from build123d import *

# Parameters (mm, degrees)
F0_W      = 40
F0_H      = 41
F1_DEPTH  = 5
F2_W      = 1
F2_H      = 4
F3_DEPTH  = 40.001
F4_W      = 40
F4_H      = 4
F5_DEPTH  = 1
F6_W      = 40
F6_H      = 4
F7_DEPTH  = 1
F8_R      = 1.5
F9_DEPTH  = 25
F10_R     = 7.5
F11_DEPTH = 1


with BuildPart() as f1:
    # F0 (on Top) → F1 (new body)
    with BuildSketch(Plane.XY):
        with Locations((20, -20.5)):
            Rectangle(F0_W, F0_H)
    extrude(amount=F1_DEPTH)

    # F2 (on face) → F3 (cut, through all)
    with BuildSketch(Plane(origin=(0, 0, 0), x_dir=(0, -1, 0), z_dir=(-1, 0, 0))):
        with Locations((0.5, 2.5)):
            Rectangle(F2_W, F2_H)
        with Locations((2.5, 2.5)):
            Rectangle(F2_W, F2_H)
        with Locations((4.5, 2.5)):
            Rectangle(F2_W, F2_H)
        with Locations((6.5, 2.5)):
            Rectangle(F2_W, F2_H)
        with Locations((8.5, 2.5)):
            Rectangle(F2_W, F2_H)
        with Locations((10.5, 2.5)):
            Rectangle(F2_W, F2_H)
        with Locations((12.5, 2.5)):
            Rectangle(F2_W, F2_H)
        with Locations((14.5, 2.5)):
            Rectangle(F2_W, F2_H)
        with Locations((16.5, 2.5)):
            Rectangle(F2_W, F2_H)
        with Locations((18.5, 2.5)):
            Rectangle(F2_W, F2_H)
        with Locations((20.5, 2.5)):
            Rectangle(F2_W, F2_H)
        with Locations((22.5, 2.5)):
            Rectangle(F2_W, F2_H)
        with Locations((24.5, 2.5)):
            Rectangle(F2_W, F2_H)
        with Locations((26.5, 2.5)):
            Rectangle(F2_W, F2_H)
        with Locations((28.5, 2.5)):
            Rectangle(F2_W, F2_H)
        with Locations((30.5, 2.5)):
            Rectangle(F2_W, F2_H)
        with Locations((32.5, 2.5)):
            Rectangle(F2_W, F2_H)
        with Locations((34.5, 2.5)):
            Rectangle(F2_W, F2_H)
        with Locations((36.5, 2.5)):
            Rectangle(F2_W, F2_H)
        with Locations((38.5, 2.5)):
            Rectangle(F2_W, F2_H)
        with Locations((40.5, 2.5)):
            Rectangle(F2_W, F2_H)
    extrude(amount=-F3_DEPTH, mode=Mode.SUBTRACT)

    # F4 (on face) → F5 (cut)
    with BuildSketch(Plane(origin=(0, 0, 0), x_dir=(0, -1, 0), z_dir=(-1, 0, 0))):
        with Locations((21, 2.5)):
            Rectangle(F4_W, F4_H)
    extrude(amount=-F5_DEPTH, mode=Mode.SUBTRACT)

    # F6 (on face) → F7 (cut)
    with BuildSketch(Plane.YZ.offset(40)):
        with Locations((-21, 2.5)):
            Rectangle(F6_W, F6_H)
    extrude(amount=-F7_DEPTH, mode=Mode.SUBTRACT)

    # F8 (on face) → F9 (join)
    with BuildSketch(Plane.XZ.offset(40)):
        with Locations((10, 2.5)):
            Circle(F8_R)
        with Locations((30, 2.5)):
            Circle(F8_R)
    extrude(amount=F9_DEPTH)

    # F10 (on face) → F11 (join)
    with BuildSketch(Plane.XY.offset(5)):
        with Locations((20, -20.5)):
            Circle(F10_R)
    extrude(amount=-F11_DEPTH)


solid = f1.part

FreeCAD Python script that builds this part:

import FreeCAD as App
import Part
import Sketcher

V = App.Vector
Q = App.Units.Quantity


def add_polygon(sketch, points):
    """Adds a closed chain of lines whose ends are joined by coincident constraints."""
    first, n = sketch.GeometryCount, len(points)
    for a, b in zip(points, points[1:] + points[:1]):
        sketch.addGeometry(Part.LineSegment(App.Vector(*a, 0), App.Vector(*b, 0)), False)
    for i in range(n):
        sketch.addConstraint(Sketcher.Constraint("Coincident", first + i, 2, first + (i + 1) % n, 1))

doc = App.newDocument("Part")
body = doc.addObject("PartDesign::Body", "Body")

sketch1 = body.newObject("Sketcher::SketchObject", "Sketch")
sketch1.AttachmentSupport = (doc.getObject("XY_Plane"), [""])
sketch1.MapMode = "FlatFace"
add_polygon(sketch1, [(0, 0), (0, -41), (40, -41), (40, 0)])
sketch1.addConstraint([
    Sketcher.Constraint("Vertical", 0),
    Sketcher.Constraint("Horizontal", 1),
    Sketcher.Constraint("Vertical", 2),
    Sketcher.Constraint("Horizontal", 3),
    Sketcher.Constraint("Coincident", 3, 2, -1, 1),
    Sketcher.Constraint("DistanceX", 1, 1, 1, 2, Q("40 mm")),
    Sketcher.Constraint("DistanceY", 0, 2, 0, 1, Q("41 mm")),
])
pad1 = body.newObject("PartDesign::Pad", "Pad")
pad1.Profile = sketch1
pad1.Length = 5

sketch2 = body.newObject("Sketcher::SketchObject", "Sketch001")
sketch2.AttachmentSupport = (doc.getObject("YZ_Plane"), [""])
sketch2.MapMode = "FlatFace"
add_polygon(sketch2, [(0, 4.5), (0, 0.5), (-1, 0.5), (-1, 4.5)])
add_polygon(sketch2, [(-2, 4.5), (-2, 0.5), (-3, 0.5), (-3, 4.5)])
add_polygon(sketch2, [(-4, 4.5), (-4, 0.5), (-5, 0.5), (-5, 4.5)])
add_polygon(sketch2, [(-6, 4.5), (-6, 0.5), (-7, 0.5), (-7, 4.5)])
add_polygon(sketch2, [(-8, 4.5), (-8, 0.5), (-9, 0.5), (-9, 4.5)])
add_polygon(sketch2, [(-10, 4.5), (-10, 0.5), (-11, 0.5), (-11, 4.5)])
add_polygon(sketch2, [(-12, 4.5), (-12, 0.5), (-13, 0.5), (-13, 4.5)])
add_polygon(sketch2, [(-14, 4.5), (-14, 0.5), (-15, 0.5), (-15, 4.5)])
add_polygon(sketch2, [(-16, 4.5), (-16, 0.5), (-17, 0.5), (-17, 4.5)])
add_polygon(sketch2, [(-18, 4.5), (-18, 0.5), (-19, 0.5), (-19, 4.5)])
add_polygon(sketch2, [(-20, 4.5), (-20, 0.5), (-21, 0.5), (-21, 4.5)])
add_polygon(sketch2, [(-22, 4.5), (-22, 0.5), (-23, 0.5), (-23, 4.5)])
add_polygon(sketch2, [(-24, 4.5), (-24, 0.5), (-25, 0.5), (-25, 4.5)])
add_polygon(sketch2, [(-26, 4.5), (-26, 0.5), (-27, 0.5), (-27, 4.5)])
add_polygon(sketch2, [(-28, 4.5), (-28, 0.5), (-29, 0.5), (-29, 4.5)])
add_polygon(sketch2, [(-30, 4.5), (-30, 0.5), (-31, 0.5), (-31, 4.5)])
add_polygon(sketch2, [(-32, 4.5), (-32, 0.5), (-33, 0.5), (-33, 4.5)])
add_polygon(sketch2, [(-34, 4.5), (-34, 0.5), (-35, 0.5), (-35, 4.5)])
add_polygon(sketch2, [(-36, 4.5), (-36, 0.5), (-37, 0.5), (-37, 4.5)])
add_polygon(sketch2, [(-38, 4.5), (-38, 0.5), (-39, 0.5), (-39, 4.5)])
add_polygon(sketch2, [(-40, 4.5), (-40, 0.5), (-41, 0.5), (-41, 4.5)])
sketch2.addConstraint([
    Sketcher.Constraint("Vertical", 0),
    Sketcher.Constraint("Horizontal", 1),
    Sketcher.Constraint("Vertical", 2),
    Sketcher.Constraint("Horizontal", 3),
    Sketcher.Constraint("Vertical", 4),
    Sketcher.Constraint("Horizontal", 5),
    Sketcher.Constraint("Vertical", 6),
    Sketcher.Constraint("Horizontal", 7),
    Sketcher.Constraint("Vertical", 8),
    Sketcher.Constraint("Horizontal", 9),
    Sketcher.Constraint("Vertical", 10),
    Sketcher.Constraint("Horizontal", 11),
    Sketcher.Constraint("Vertical", 12),
    Sketcher.Constraint("Horizontal", 13),
    Sketcher.Constraint("Vertical", 14),
    Sketcher.Constraint("Horizontal", 15),
    Sketcher.Constraint("Vertical", 16),
    Sketcher.Constraint("Horizontal", 17),
    Sketcher.Constraint("Vertical", 18),
    Sketcher.Constraint("Horizontal", 19),
    Sketcher.Constraint("Vertical", 20),
    Sketcher.Constraint("Horizontal", 21),
    Sketcher.Constraint("Vertical", 22),
    Sketcher.Constraint("Horizontal", 23),
    Sketcher.Constraint("Vertical", 24),
    Sketcher.Constraint("Horizontal", 25),
    Sketcher.Constraint("Vertical", 26),
    Sketcher.Constraint("Horizontal", 27),
    Sketcher.Constraint("Vertical", 28),
    Sketcher.Constraint("Horizontal", 29),
    Sketcher.Constraint("Vertical", 30),
    Sketcher.Constraint("Horizontal", 31),
    Sketcher.Constraint("Vertical", 32),
    Sketcher.Constraint("Horizontal", 33),
    Sketcher.Constraint("Vertical", 34),
    Sketcher.Constraint("Horizontal", 35),
    Sketcher.Constraint("Vertical", 36),
    Sketcher.Constraint("Horizontal", 37),
    Sketcher.Constraint("Vertical", 38),
    Sketcher.Constraint("Horizontal", 39),
    Sketcher.Constraint("Vertical", 40),
    Sketcher.Constraint("Horizontal", 41),
    Sketcher.Constraint("Vertical", 42),
    Sketcher.Constraint("Horizontal", 43),
    Sketcher.Constraint("Vertical", 44),
    Sketcher.Constraint("Horizontal", 45),
    Sketcher.Constraint("Vertical", 46),
    Sketcher.Constraint("Horizontal", 47),
    Sketcher.Constraint("Vertical", 48),
    Sketcher.Constraint("Horizontal", 49),
    Sketcher.Constraint("Vertical", 50),
    Sketcher.Constraint("Horizontal", 51),
    Sketcher.Constraint("Vertical", 52),
    Sketcher.Constraint("Horizontal", 53),
    Sketcher.Constraint("Vertical", 54),
    Sketcher.Constraint("Horizontal", 55),
    Sketcher.Constraint("Vertical", 56),
    Sketcher.Constraint("Horizontal", 57),
    Sketcher.Constraint("Vertical", 58),
    Sketcher.Constraint("Horizontal", 59),
    Sketcher.Constraint("Vertical", 60),
    Sketcher.Constraint("Horizontal", 61),
    Sketcher.Constraint("Vertical", 62),
    Sketcher.Constraint("Horizontal", 63),
    Sketcher.Constraint("Vertical", 64),
    Sketcher.Constraint("Horizontal", 65),
    Sketcher.Constraint("Vertical", 66),
    Sketcher.Constraint("Horizontal", 67),
    Sketcher.Constraint("Vertical", 68),
    Sketcher.Constraint("Horizontal", 69),
    Sketcher.Constraint("Vertical", 70),
    Sketcher.Constraint("Horizontal", 71),
    Sketcher.Constraint("Vertical", 72),
    Sketcher.Constraint("Horizontal", 73),
    Sketcher.Constraint("Vertical", 74),
    Sketcher.Constraint("Horizontal", 75),
    Sketcher.Constraint("Vertical", 76),
    Sketcher.Constraint("Horizontal", 77),
    Sketcher.Constraint("Vertical", 78),
    Sketcher.Constraint("Horizontal", 79),
    Sketcher.Constraint("Vertical", 80),
    Sketcher.Constraint("Horizontal", 81),
    Sketcher.Constraint("Vertical", 82),
    Sketcher.Constraint("Horizontal", 83),
    Sketcher.Constraint("PointOnObject", 0, 2, -2),
    Sketcher.Constraint("Horizontal", 1, 2, 4, 2),
    Sketcher.Constraint("Horizontal", 3, 2, 6, 2),
    Sketcher.Constraint("Horizontal", 5, 2, 8, 2),
    Sketcher.Constraint("Horizontal", 7, 2, 10, 2),
    Sketcher.Constraint("Horizontal", 9, 2, 12, 2),
    Sketcher.Constraint("Horizontal", 11, 2, 14, 2),
    Sketcher.Constraint("Horizontal", 13, 2, 16, 2),
    Sketcher.Constraint("Horizontal", 15, 2, 18, 2),
    Sketcher.Constraint("Horizontal", 17, 2, 20, 2),
    Sketcher.Constraint("Horizontal", 19, 2, 22, 2),
    Sketcher.Constraint("Horizontal", 21, 2, 24, 2),
    Sketcher.Constraint("Horizontal", 23, 2, 26, 2),
    Sketcher.Constraint("Horizontal", 25, 2, 28, 2),
    Sketcher.Constraint("Horizontal", 27, 2, 30, 2),
    Sketcher.Constraint("Horizontal", 29, 2, 32, 2),
    Sketcher.Constraint("Horizontal", 31, 2, 34, 2),
    Sketcher.Constraint("Horizontal", 33, 2, 36, 2),
    Sketcher.Constraint("Horizontal", 35, 2, 38, 2),
    Sketcher.Constraint("Horizontal", 37, 2, 40, 2),
    Sketcher.Constraint("Horizontal", 39, 2, 42, 2),
    Sketcher.Constraint("Horizontal", 41, 2, 44, 2),
    Sketcher.Constraint("Horizontal", 43, 2, 46, 2),
    Sketcher.Constraint("Horizontal", 45, 2, 48, 2),
    Sketcher.Constraint("Horizontal", 47, 2, 50, 2),
    Sketcher.Constraint("Horizontal", 49, 2, 52, 2),
    Sketcher.Constraint("Horizontal", 51, 2, 54, 2),
    Sketcher.Constraint("Horizontal", 53, 2, 56, 2),
    Sketcher.Constraint("Horizontal", 55, 2, 58, 2),
    Sketcher.Constraint("Horizontal", 57, 2, 60, 2),
    Sketcher.Constraint("Horizontal", 59, 2, 62, 2),
    Sketcher.Constraint("Horizontal", 61, 2, 64, 2),
    Sketcher.Constraint("Horizontal", 63, 2, 66, 2),
    Sketcher.Constraint("Horizontal", 65, 2, 68, 2),
    Sketcher.Constraint("Horizontal", 67, 2, 70, 2),
    Sketcher.Constraint("Horizontal", 69, 2, 72, 2),
    Sketcher.Constraint("Horizontal", 71, 2, 74, 2),
    Sketcher.Constraint("Horizontal", 73, 2, 76, 2),
    Sketcher.Constraint("Horizontal", 75, 2, 78, 2),
    Sketcher.Constraint("Horizontal", 77, 2, 80, 2),
    Sketcher.Constraint("Horizontal", 79, 2, 82, 2),
    Sketcher.Constraint("Equal", 3, 5),
    Sketcher.Constraint("Equal", 7, 9),
    Sketcher.Constraint("Equal", 11, 13),
    Sketcher.Constraint("Equal", 15, 17),
    Sketcher.Constraint("Equal", 19, 21),
    Sketcher.Constraint("Equal", 23, 25),
    Sketcher.Constraint("Equal", 27, 29),
    Sketcher.Constraint("Equal", 31, 33),
    Sketcher.Constraint("Equal", 35, 37),
    Sketcher.Constraint("Equal", 39, 41),
    Sketcher.Constraint("Equal", 43, 45),
    Sketcher.Constraint("Equal", 47, 49),
    Sketcher.Constraint("Equal", 51, 53),
    Sketcher.Constraint("Equal", 55, 57),
    Sketcher.Constraint("Equal", 59, 61),
    Sketcher.Constraint("Equal", 63, 65),
    Sketcher.Constraint("Equal", 67, 69),
    Sketcher.Constraint("Equal", 71, 73),
    Sketcher.Constraint("Equal", 75, 77),
    Sketcher.Constraint("Equal", 79, 81),
    Sketcher.Constraint("DistanceX", 1, 2, 1, 1, Q("1 mm")),
    Sketcher.Constraint("DistanceY", 0, 2, 0, 1, Q("4 mm")),
    Sketcher.Constraint("DistanceX", 4, 2, -1, 1, Q("2 mm")),
    Sketcher.Constraint("DistanceX", 8, 2, -1, 1, Q("4 mm")),
    Sketcher.Constraint("DistanceX", 12, 2, -1, 1, Q("6 mm")),
    Sketcher.Constraint("DistanceX", 16, 2, -1, 1, Q("8 mm")),
    Sketcher.Constraint("DistanceX", 20, 2, -1, 1, Q("10 mm")),
    Sketcher.Constraint("DistanceX", 24, 2, -1, 1, Q("12 mm")),
    Sketcher.Constraint("DistanceX", 28, 2, -1, 1, Q("14 mm")),
    Sketcher.Constraint("DistanceX", 32, 2, -1, 1, Q("16 mm")),
    Sketcher.Constraint("DistanceX", 36, 2, -1, 1, Q("18 mm")),
    Sketcher.Constraint("DistanceX", 40, 2, -1, 1, Q("20 mm")),
    Sketcher.Constraint("DistanceX", 44, 2, -1, 1, Q("22 mm")),
    Sketcher.Constraint("DistanceX", 48, 2, -1, 1, Q("24 mm")),
    Sketcher.Constraint("DistanceX", 52, 2, -1, 1, Q("26 mm")),
    Sketcher.Constraint("DistanceX", 56, 2, -1, 1, Q("28 mm")),
    Sketcher.Constraint("DistanceX", 60, 2, -1, 1, Q("30 mm")),
    Sketcher.Constraint("DistanceX", 64, 2, -1, 1, Q("32 mm")),
    Sketcher.Constraint("DistanceX", 68, 2, -1, 1, Q("34 mm")),
    Sketcher.Constraint("DistanceX", 72, 2, -1, 1, Q("36 mm")),
    Sketcher.Constraint("DistanceX", 76, 2, -1, 1, Q("38 mm")),
    Sketcher.Constraint("DistanceX", 80, 2, -1, 1, Q("40 mm")),
    Sketcher.Constraint("DistanceY", -1, 1, 0, 2, Q("0.5 mm")),
])
pocket1 = body.newObject("PartDesign::Pocket", "Pocket")
pocket1.Profile = sketch2
pocket1.Type = "ThroughAll"
pocket1.Reversed = True

sketch3 = body.newObject("Sketcher::SketchObject", "Sketch002")
sketch3.AttachmentSupport = (doc.getObject("YZ_Plane"), [""])
sketch3.MapMode = "FlatFace"
add_polygon(sketch3, [(-1, 4.5), (-1, 0.5), (-41, 0.5), (-41, 4.5)])
sketch3.addConstraint([
    Sketcher.Constraint("Vertical", 0),
    Sketcher.Constraint("Horizontal", 1),
    Sketcher.Constraint("Vertical", 2),
    Sketcher.Constraint("Horizontal", 3),
    Sketcher.Constraint("DistanceX", 1, 2, 1, 1, Q("40 mm")),
    Sketcher.Constraint("DistanceY", 0, 2, 0, 1, Q("4 mm")),
    Sketcher.Constraint("DistanceX", 0, 2, -1, 1, Q("1 mm")),
    Sketcher.Constraint("DistanceY", -1, 1, 0, 2, Q("0.5 mm")),
])
pocket2 = body.newObject("PartDesign::Pocket", "Pocket001")
pocket2.Profile = sketch3
pocket2.Length = 1
pocket2.Reversed = True

sketch4 = body.newObject("Sketcher::SketchObject", "Sketch003")
sketch4.AttachmentSupport = (doc.getObject("YZ_Plane"), [""])
sketch4.MapMode = "FlatFace"
sketch4.AttachmentOffset = App.Placement(V(0, 0, 40), App.Rotation())
add_polygon(sketch4, [(-41, 4.5), (-41, 0.5), (-1, 0.5), (-1, 4.5)])
sketch4.addConstraint([
    Sketcher.Constraint("Vertical", 0),
    Sketcher.Constraint("Horizontal", 1),
    Sketcher.Constraint("Vertical", 2),
    Sketcher.Constraint("Horizontal", 3),
    Sketcher.Constraint("DistanceX", 1, 1, 1, 2, Q("40 mm")),
    Sketcher.Constraint("DistanceY", 0, 2, 0, 1, Q("4 mm")),
    Sketcher.Constraint("DistanceX", 0, 2, -1, 1, Q("41 mm")),
    Sketcher.Constraint("DistanceY", -1, 1, 0, 2, Q("0.5 mm")),
])
pocket3 = body.newObject("PartDesign::Pocket", "Pocket002")
pocket3.Profile = sketch4
pocket3.Length = 1

sketch5 = body.newObject("Sketcher::SketchObject", "Sketch004")
sketch5.AttachmentSupport = (doc.getObject("XZ_Plane"), [""])
sketch5.MapMode = "FlatFace"
sketch5.AttachmentOffset = App.Placement(V(0, 0, 40), App.Rotation())
sketch5.addGeometry([
    Part.Circle(V(10, 2.5, 0), V(0, 0, 1), 1.5),
    Part.Circle(V(30, 2.5, 0), V(0, 0, 1), 1.5),
], False)
sketch5.addConstraint([
    Sketcher.Constraint("Equal", 0, 1),
    Sketcher.Constraint("Horizontal", 0, 3, 1, 3),
    Sketcher.Constraint("Diameter", 0, Q("3 mm")),
    Sketcher.Constraint("DistanceX", -1, 1, 0, 3, Q("10 mm")),
    Sketcher.Constraint("DistanceX", -1, 1, 1, 3, Q("30 mm")),
    Sketcher.Constraint("DistanceY", -1, 1, 0, 3, Q("2.5 mm")),
])
pad2 = body.newObject("PartDesign::Pad", "Pad001")
pad2.Profile = sketch5
pad2.Length = 25

sketch6 = body.newObject("Sketcher::SketchObject", "Sketch005")
sketch6.AttachmentSupport = (doc.getObject("XY_Plane"), [""])
sketch6.MapMode = "FlatFace"
sketch6.AttachmentOffset = App.Placement(V(0, 0, 5), App.Rotation())
sketch6.addGeometry(Part.Circle(V(20, -20, 0), V(0, 0, 1), 8), False)
sketch6.addConstraint([
    Sketcher.Constraint("Diameter", 0, Q("15 mm")),
    Sketcher.Constraint("DistanceX", -1, 1, 0, 3, Q("20 mm")),
    Sketcher.Constraint("DistanceY", 0, 3, -1, 1, Q("20.5 mm")),
])
pad3 = body.newObject("PartDesign::Pad", "Pad002")
pad3.Profile = sketch6
pad3.Length = 1
pad3.Reversed = True

doc.recompute()
